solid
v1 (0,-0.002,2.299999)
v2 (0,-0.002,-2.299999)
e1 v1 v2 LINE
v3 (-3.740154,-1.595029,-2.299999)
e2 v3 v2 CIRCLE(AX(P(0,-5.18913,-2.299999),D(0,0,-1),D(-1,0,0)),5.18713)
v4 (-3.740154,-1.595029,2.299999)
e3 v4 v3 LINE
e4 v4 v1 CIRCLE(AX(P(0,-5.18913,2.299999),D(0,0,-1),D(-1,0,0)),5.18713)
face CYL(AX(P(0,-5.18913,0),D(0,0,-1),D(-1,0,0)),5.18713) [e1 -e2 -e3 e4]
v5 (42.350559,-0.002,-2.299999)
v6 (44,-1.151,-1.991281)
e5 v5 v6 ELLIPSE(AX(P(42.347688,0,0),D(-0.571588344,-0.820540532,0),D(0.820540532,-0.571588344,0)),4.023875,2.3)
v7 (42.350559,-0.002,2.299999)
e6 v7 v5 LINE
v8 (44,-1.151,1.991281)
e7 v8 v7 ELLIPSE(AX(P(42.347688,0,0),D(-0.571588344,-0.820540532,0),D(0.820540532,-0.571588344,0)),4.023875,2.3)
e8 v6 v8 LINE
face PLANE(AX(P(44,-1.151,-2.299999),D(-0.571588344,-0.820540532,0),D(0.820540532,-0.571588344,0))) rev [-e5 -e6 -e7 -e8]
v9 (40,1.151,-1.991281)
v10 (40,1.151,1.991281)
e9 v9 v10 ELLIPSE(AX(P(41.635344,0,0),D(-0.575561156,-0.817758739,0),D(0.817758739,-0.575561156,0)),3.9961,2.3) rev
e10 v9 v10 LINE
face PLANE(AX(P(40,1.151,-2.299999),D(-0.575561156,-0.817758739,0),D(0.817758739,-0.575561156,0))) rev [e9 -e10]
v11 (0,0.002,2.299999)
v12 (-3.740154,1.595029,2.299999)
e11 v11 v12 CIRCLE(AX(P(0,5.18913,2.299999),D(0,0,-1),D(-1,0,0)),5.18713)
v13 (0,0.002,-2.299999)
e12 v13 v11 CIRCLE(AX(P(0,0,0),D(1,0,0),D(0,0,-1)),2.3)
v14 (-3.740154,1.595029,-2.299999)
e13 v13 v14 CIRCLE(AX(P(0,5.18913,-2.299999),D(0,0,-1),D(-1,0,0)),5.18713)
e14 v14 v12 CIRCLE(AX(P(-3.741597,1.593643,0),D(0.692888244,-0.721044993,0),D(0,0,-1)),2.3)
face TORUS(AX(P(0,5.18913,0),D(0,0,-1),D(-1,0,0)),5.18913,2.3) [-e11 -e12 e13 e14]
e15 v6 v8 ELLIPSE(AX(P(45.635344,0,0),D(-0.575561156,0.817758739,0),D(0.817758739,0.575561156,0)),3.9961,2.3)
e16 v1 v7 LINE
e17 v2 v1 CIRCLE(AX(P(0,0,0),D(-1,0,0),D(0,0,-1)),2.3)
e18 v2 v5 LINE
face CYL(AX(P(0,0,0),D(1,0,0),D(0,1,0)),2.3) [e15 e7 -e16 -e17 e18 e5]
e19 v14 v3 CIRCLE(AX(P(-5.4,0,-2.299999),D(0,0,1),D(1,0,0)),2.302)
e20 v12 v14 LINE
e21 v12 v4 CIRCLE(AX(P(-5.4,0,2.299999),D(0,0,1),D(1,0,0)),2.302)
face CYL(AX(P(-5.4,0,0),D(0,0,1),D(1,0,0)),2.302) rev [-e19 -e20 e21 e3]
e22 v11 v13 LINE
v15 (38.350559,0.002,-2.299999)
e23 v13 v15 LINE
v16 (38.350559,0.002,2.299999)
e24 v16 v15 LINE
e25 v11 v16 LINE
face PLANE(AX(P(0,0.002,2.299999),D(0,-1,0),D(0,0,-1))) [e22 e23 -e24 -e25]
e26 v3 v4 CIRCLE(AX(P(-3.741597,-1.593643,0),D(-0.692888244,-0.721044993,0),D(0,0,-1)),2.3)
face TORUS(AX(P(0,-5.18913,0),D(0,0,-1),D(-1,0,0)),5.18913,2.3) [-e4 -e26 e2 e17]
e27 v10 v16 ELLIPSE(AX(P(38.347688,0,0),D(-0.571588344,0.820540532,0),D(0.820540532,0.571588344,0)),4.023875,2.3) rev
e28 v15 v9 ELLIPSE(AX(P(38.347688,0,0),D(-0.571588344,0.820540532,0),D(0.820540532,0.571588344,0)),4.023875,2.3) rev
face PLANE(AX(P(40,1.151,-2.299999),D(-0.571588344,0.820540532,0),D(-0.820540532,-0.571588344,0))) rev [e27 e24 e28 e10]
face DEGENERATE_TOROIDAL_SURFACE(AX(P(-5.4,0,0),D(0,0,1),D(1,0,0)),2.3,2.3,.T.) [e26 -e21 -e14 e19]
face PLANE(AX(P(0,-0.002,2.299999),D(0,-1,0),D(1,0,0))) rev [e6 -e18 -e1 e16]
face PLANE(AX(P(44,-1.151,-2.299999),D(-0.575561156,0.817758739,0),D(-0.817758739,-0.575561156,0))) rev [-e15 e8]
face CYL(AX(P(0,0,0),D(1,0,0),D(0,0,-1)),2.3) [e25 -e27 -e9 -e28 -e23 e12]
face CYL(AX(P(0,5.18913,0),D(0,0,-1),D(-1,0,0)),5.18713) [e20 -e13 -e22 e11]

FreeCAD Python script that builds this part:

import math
import FreeCAD as App
import Part
import Sketcher


def add_polygon(sketch, points):
    """Adds a closed chain of lines whose ends are joined by coincident constraints."""
    first, n = sketch.GeometryCount, len(points)
    for a, b in zip(points, points[1:] + points[:1]):
        sketch.addGeometry(Part.LineSegment(App.Vector(*a, 0), App.Vector(*b, 0)), False)
    for i in range(n):
        sketch.addConstraint(Sketcher.Constraint("Coincident", first + i, 2, first + (i + 1) % n, 1))

doc = App.newDocument("Part")
body = doc.addObject("PartDesign::Body", "Body")

sketch1 = doc.addObject("Sketcher::SketchObject", "Sketch")
body.addObject(sketch1)
sketch1.AttachmentSupport = (doc.YZ_Plane, [""])
sketch1.MapMode = "FlatFace"
sketch1.AttachmentOffset = App.Placement(App.Vector(0, 0, 40), App.Rotation())
sketch1.addGeometry(Part.LineSegment(App.Vector(0, 2.3, 0), App.Vector(0, -2.3, 0)), False)
sketch1.addGeometry(Part.ArcOfCircle(Part.Circle(App.Vector(0, 0, 0), App.Vector(0, 0, 1), 2.3), math.radians(-90), math.radians(90)), False)
sketch1.addConstraint(Sketcher.Constraint("Coincident", 0, 1, 1, 2))
sketch1.addConstraint(Sketcher.Constraint("Coincident", 1, 1, 0, 2))
sketch1.addConstraint(Sketcher.Constraint("Vertical", 0))
sketch1.addConstraint(Sketcher.Constraint("Coincident", 1, 3, -1, 1))
sketch1.addConstraint(Sketcher.Constraint("Radius", 1, 2.3))
sketch1.addConstraint(Sketcher.Constraint("DistanceX", -1, 1, 0, 1, 0.002))

sketch2 = doc.addObject("Sketcher::SketchObject", "Sketch001")
body.addObject(sketch2)
sketch2.AttachmentSupport = (doc.XY_Plane, [""])
sketch2.MapMode = "FlatFace"
sketch2.addGeometry(Part.LineSegment(App.Vector(40, 2.3, 0), App.Vector(0, 2.3, 0)), False)
sketch2.addGeometry(Part.ArcOfCircle(Part.Circle(App.Vector(0, 5.2, 0), App.Vector(0, 0, 1), 2.9), math.radians(-136), math.radians(-90)), False)
sketch2.addGeometry(Part.ArcOfCircle(Part.Circle(App.Vector(-5.4, 0, 0), App.Vector(0, 0, 1), 4.6), math.radians(44), math.radians(316)), False)
sketch2.addGeometry(Part.ArcOfCircle(Part.Circle(App.Vector(0, -5.2, 0), App.Vector(0, 0, 1), 2.9), math.radians(90), math.radians(136)), False)
sketch2.addGeometry(Part.LineSegment(App.Vector(0, -2.3, 0), App.Vector(44, -2.3, 0)), False)
sketch2.addConstraint(Sketcher.Constraint("Tangent", 0, 2, 1, 2))
sketch2.addConstraint(Sketcher.Constraint("Tangent", 1, 1, 2, 1))
sketch2.addConstraint(Sketcher.Constraint("Tangent", 2, 2, 3, 2))
sketch2.addConstraint(Sketcher.Constraint("Tangent", 3, 1, 4, 1))
sketch2.addConstraint(Sketcher.Constraint("Horizontal", 0))
sketch2.addConstraint(Sketcher.Constraint("Horizontal", 4))
sketch2.addConstraint(Sketcher.Constraint("Equal", 1, 3))
sketch2.addConstraint(Sketcher.Constraint("Symmetric", 1, 3, 3, 3, -1, 1))
sketch2.addConstraint(Sketcher.Constraint("PointOnObject", 1, 3, -2))
sketch2.addConstraint(Sketcher.Constraint("Radius", 2, 4.6))
sketch2.addConstraint(Sketcher.Constraint("DistanceX", 0, 2, 0, 1, 40.0))
sketch2.addConstraint(Sketcher.Constraint("DistanceX", 4, 1, 4, 2, 44.0))
sketch2.addConstraint(Sketcher.Constraint("DistanceX", 2, 3, -1, 1, 5.4))
sketch2.addConstraint(Sketcher.Constraint("DistanceY", -1, 1, 0, 1, 2.3))
doc.recompute()

additivepipe = doc.addObject("PartDesign::AdditivePipe", "AdditivePipe")
body.addObject(additivepipe)
additivepipe.Profile = sketch1
additivepipe.Spine = (sketch2, ["Edge1", "Edge2", "Edge3", "Edge4", "Edge5"])

sketch3 = doc.addObject("Sketcher::SketchObject", "Sketch002")
body.addObject(sketch3)
sketch3.AttachmentSupport = (doc.XY_Plane, [""])
sketch3.MapMode = "FlatFace"
add_polygon(sketch3, [(38.4, 2.3), (40, 1.2), (38.3, 0), (42.3, 0), (44, -1.2), (42.4, -2.3), (44, -2.3), (44, 2.3)])
sketch3.addConstraint(Sketcher.Constraint("Horizontal", 2))
sketch3.addConstraint(Sketcher.Constraint("Horizontal", 5))
sketch3.addConstraint(Sketcher.Constraint("Vertical", 6))
sketch3.addConstraint(Sketcher.Constraint("Horizontal", 7))
sketch3.addConstraint(Sketcher.Constraint("PointOnObject", 1, 2, -1))
sketch3.addConstraint(Sketcher.Constraint("Equal", 0, 1))
sketch3.addConstraint(Sketcher.Constraint("Equal", 1, 3))
sketch3.addConstraint(Sketcher.Constraint("Equal", 3, 4))
sketch3.addConstraint(Sketcher.Constraint("DistanceX", 2, 1, 2, 2, 4.0))
sketch3.addConstraint(Sketcher.Constraint("DistanceX", -1, 1, 0, 2, 40.0))
sketch3.addConstraint(Sketcher.Constraint("DistanceX", -1, 1, 3, 2, 44.0))
sketch3.addConstraint(Sketcher.Constraint("DistanceX", 7, 2, 4, 2, 4.0))
sketch3.addConstraint(Sketcher.Constraint("DistanceY", 6, 1, 6, 2, 4.62))
sketch3.addConstraint(Sketcher.Constraint("DistanceX", -1, 1, 5, 2, 44.01))
sketch3.addConstraint(Sketcher.Constraint("DistanceY", -1, 1, 0, 2, 1.151))
sketch3.addConstraint(Sketcher.Constraint("DistanceX", 5, 1, 5, 2, 1.65671))
pocket1 = doc.addObject("PartDesign::Pocket", "Pocket")
body.addObject(pocket1)
pocket1.Profile = sketch3
pocket1.Type = "ThroughAll"
pocket1.Midplane = True

doc.recompute()
